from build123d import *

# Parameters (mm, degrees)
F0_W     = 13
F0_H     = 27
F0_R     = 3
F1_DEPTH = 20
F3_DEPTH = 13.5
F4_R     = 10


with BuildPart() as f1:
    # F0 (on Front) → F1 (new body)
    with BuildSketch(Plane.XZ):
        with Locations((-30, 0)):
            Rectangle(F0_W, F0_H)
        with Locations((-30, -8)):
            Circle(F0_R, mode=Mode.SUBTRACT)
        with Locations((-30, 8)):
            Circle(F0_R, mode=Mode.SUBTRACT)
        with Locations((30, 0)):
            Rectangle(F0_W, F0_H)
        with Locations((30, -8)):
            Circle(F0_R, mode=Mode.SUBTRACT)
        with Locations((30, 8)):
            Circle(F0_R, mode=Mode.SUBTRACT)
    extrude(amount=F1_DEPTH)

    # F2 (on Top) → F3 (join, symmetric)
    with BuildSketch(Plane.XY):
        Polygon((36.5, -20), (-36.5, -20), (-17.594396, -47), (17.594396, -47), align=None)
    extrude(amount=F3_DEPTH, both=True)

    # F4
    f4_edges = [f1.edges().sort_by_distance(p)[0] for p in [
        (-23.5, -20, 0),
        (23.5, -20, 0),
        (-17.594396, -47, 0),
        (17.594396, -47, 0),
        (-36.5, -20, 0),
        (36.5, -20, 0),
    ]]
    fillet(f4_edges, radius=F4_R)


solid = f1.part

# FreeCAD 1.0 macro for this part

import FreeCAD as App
import Part
import Sketcher
from FreeCAD import Vector
Q = App.Units.Quantity


def edges_at(feature, points):
    """Names of the edges that pass closest to the given points."""
    edges = feature.Shape.Edges
    near = lambda p: min(range(len(edges)), key=lambda i: edges[i].distToShape(Part.Vertex(*p))[0])
    return sorted({f"Edge{near(p) + 1}" for p in points})


def add_polygon(sketch, points):
    """Adds a closed chain of lines whose ends are joined by coincident constraints."""
    first, n = sketch.GeometryCount, len(points)
    for a, b in zip(points, points[1:] + points[:1]):
        sketch.addGeometry(Part.LineSegment(App.Vector(*a, 0), App.Vector(*b, 0)), False)
    for i in range(n):
        sketch.addConstraint(Sketcher.Constraint("Coincident", first + i, 2, first + (i + 1) % n, 1))

doc = App.newDocument("Part")
body = doc.addObject("PartDesign::Body", "Body")
body.AllowCompound = True

sketch1 = body.newObject("Sketcher::SketchObject", "Sketch")
sketch1.AttachmentSupport = (doc.getObject("XZ_Plane"), [""])
sketch1.MapMode = "FlatFace"
add_polygon(sketch1, [(-36.5, 13.5), (-36.5, -13.5), (-23.5, -13.5), (-23.5, 13.5)])
sketch1.addGeometry(Part.Circle(Vector(-30, -8, 0), Vector(0, 0, 1), 3), False)
sketch1.addGeometry(Part.Circle(Vector(-30, 8, 0), Vector(0, 0, 1), 3), False)
add_polygon(sketch1, [(23.5, 13.5), (23.5, -13.5), (36.5, -13.5), (36.5, 13.5)])
sketch1.addGeometry(Part.Circle(Vector(30, -8, 0), Vector(0, 0, 1), 3), False)
sketch1.addGeometry(Part.Circle(Vector(30, 8, 0), Vector(0, 0, 1), 3), False)
sketch1.addConstraint([
    Sketcher.Constraint("Vertical", 0),
    Sketcher.Constraint("Horizontal", 1),
    Sketcher.Constraint("Vertical", 2),
    Sketcher.Constraint("Horizontal", 3),
    Sketcher.Constraint("Vertical", 6),
    Sketcher.Constraint("Horizontal", 7),
    Sketcher.Constraint("Vertical", 8),
    Sketcher.Constraint("Horizontal", 9),
    Sketcher.Constraint("Equal", 4, 5),
    Sketcher.Constraint("Equal", 5, 10),
    Sketcher.Constraint("Equal", 10, 11),
    Sketcher.Constraint("Symmetric", 5, 3, 10, 3, -1, 1),
    Sketcher.Constraint("Symmetric", 4, 3, 11, 3, -1, 1),
    Sketcher.Constraint("Symmetric", 2, 2, 6, 2, -1, 1),
    Sketcher.Constraint("Symmetric", 0, 2, 8, 2, -1, 1),
    Sketcher.Constraint("Symmetric", 4, 3, 10, 3, -2),
    Sketcher.Constraint("Horizontal", 1, 2, 6, 2),
    Sketcher.Constraint("Diameter", 4, Q("6 mm")),
    Sketcher.Constraint("DistanceX", 1, 1, 1, 2, Q("13 mm")),
    Sketcher.Constraint("DistanceY", 0, 2, 0, 1, Q("27 mm")),
    Sketcher.Constraint("DistanceX", 4, 3, -1, 1, Q("30 mm")),
    Sketcher.Constraint("DistanceY", 4, 3, -1, 1, Q("8 mm")),
    Sketcher.Constraint("DistanceX", 1, 2, 6, 2, Q("47 mm")),
])
pad1 = body.newObject("PartDesign::Pad", "Pad")
pad1.Profile = sketch1
pad1.Length = 20

sketch2 = body.newObject("Sketcher::SketchObject", "Sketch001")
sketch2.AttachmentSupport = (doc.getObject("XY_Plane"), [""])
sketch2.MapMode = "FlatFace"
add_polygon(sketch2, [(36, -20), (-36, -20), (-18, -47), (18, -47)])
sketch2.addConstraint([
    Sketcher.Constraint("Horizontal", 0),
    Sketcher.Constraint("Horizontal", 2),
    Sketcher.Constraint("Equal", 1, 3),
    Sketcher.Constraint("DistanceX", 0, 2, 0, 1, Q("73 mm")),
    Sketcher.Constraint("Angle", 1, Q("-54.999999 deg")),
    Sketcher.Constraint("DistanceY", 0, 2, -1, 1, Q("20 mm")),
    Sketcher.Constraint("DistanceY", 1, 2, -1, 1, Q("47 mm")),
    Sketcher.Constraint("DistanceX", 0, 2, -1, 1, Q("36.5 mm")),
])
pad2 = body.newObject("PartDesign::Pad", "Pad001")
pad2.Profile = sketch2
pad2.Length = 27
pad2.Midplane = True
doc.recompute()

fillet = body.newObject("PartDesign::Fillet", "Fillet")
fillet.Base = (pad2, edges_at(pad2, [
    (-23.5, -20, 0),
    (23.5, -20, 0),
    (-17.594, -47, 0),
    (17.594, -47, 0),
    (-36.5, -20, 0),
    (36.5, -20, 0),
]))
fillet.Radius = 10

doc.recompute()
